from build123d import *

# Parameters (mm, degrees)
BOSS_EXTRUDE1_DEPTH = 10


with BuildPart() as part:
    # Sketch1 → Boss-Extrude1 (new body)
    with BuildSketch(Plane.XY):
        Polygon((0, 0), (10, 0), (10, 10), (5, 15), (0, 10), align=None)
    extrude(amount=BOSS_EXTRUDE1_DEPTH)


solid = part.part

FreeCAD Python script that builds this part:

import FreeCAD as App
import Part
import Sketcher

V = App.Vector

doc = App.newDocument("Part")
body = doc.addObject("PartDesign::Body", "Body")

# Sketch on XY plane
sketch1 = body.newObject("Sketcher::SketchObject", "Sketch")
sketch1.AttachmentSupport = (doc.getObject("XY_Plane"), [""])
sketch1.MapMode = "FlatFace"
sketch1.addGeometry([
    Part.LineSegment(V(0, 0, 0), V(10, 0, 0)),  # 0
    Part.LineSegment(V(10, 0, 0), V(10, 10, 0)),  # 1
    Part.LineSegment(V(10, 10, 0), V(5, 15, 0)),  # 2
    Part.LineSegment(V(5, 15, 0), V(0, 10, 0)),  # 3
    Part.LineSegment(V(0, 10, 0), V(0, 0, 0)),  # 4
], False)
sketch1.addConstraint([
    Sketcher.Constraint("Coincident", 0, 2, 1, 1),
    Sketcher.Constraint("Coincident", 1, 2, 2, 1),
    Sketcher.Constraint("Coincident", 2, 2, 3, 1),
    Sketcher.Constraint("Coincident", 3, 2, 4, 1),
    Sketcher.Constraint("Coincident", 4, 2, 0, 1),
    Sketcher.Constraint("Horizontal", 0),
    Sketcher.Constraint("Vertical", 1),
    Sketcher.Constraint("Vertical", 4),
    Sketcher.Constraint("Coincident", 4, 2, -1, 1),
    Sketcher.Constraint("Perpendicular", 2, 3),
    Sketcher.Constraint("Horizontal", 1, 2, 3, 2),
    Sketcher.Constraint("Equal", 0, 1),
    Sketcher.Constraint("Equal", 2, 3),
    Sketcher.Constraint("DistanceX", 0, 1, 0, 2, 10.0),
])
pad1 = body.newObject("PartDesign::Pad", "Pad")
pad1.Profile = sketch1
pad1.Length = 10

doc.recompute()
